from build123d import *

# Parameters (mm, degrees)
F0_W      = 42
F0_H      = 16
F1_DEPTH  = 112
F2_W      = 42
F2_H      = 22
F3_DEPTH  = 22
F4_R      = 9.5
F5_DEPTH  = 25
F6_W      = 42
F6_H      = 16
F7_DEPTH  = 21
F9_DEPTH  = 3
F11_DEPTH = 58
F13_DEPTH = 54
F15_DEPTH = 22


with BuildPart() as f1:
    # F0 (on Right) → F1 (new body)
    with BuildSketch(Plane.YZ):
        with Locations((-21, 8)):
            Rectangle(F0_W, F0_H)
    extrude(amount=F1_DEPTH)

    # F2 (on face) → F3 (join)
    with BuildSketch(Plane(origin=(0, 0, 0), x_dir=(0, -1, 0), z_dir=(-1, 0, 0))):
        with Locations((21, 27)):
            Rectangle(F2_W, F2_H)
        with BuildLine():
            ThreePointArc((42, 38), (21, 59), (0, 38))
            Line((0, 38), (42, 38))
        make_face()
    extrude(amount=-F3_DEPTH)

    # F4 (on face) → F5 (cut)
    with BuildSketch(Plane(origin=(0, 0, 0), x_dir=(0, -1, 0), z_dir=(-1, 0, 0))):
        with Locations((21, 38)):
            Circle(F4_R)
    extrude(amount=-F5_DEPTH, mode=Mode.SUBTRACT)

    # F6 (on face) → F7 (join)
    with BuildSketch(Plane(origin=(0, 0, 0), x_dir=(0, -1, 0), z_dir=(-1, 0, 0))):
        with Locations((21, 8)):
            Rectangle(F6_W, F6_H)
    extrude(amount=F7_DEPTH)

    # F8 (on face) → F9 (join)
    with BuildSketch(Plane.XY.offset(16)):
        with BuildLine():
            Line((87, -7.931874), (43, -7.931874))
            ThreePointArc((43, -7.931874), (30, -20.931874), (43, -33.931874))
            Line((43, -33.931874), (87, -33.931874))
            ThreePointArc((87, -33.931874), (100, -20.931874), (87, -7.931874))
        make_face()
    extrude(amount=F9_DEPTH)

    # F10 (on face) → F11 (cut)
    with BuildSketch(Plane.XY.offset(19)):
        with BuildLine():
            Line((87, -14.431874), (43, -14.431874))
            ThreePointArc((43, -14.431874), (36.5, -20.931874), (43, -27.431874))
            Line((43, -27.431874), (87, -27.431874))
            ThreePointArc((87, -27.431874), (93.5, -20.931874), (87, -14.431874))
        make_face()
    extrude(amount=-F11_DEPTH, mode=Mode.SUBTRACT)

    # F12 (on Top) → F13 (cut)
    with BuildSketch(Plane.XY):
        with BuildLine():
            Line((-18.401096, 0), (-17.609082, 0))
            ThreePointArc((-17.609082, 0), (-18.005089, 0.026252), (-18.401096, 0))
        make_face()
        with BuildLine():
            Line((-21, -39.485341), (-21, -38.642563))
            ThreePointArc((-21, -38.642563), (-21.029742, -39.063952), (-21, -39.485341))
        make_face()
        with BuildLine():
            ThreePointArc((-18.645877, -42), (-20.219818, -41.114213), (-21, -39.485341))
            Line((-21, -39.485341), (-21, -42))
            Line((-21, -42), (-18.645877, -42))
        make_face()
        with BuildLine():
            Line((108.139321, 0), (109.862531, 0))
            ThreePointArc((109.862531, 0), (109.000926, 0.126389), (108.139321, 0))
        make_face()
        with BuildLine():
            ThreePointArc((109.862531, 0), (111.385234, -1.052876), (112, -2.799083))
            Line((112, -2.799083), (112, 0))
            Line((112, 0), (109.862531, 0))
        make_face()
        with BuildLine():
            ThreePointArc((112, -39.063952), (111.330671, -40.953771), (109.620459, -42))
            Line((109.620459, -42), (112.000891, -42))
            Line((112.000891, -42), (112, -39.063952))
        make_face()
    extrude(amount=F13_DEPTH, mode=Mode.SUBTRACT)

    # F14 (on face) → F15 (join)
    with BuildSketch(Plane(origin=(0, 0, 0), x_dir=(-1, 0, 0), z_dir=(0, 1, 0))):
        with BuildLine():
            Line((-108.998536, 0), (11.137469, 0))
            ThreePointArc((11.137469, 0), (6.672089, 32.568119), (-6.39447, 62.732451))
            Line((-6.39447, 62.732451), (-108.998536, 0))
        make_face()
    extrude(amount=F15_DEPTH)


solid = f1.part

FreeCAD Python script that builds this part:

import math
import FreeCAD as App
import Part
import Sketcher

doc = App.newDocument("Part")
body = doc.addObject("PartDesign::Body", "Body")

# Sketch on YZ plane
sketch1 = body.newObject("Sketcher::SketchObject", "Sketch")
sketch1.AttachmentSupport = (doc.getObject("YZ_Plane"), [""])
sketch1.MapMode = "FlatFace"
sketch1.addGeometry([
    Part.LineSegment(App.Vector(-42, 16, 0), App.Vector(-42, 0, 0)),
    Part.LineSegment(App.Vector(-42, 0, 0), App.Vector(0, 0, 0)),
    Part.LineSegment(App.Vector(0, 0, 0), App.Vector(0, 16, 0)),
    Part.LineSegment(App.Vector(0, 16, 0), App.Vector(-42, 16, 0)),
], False)
sketch1.addConstraint([
    Sketcher.Constraint("Coincident", 0, 2, 1, 1),
    Sketcher.Constraint("Coincident", 1, 2, 2, 1),
    Sketcher.Constraint("Coincident", 2, 2, 3, 1),
    Sketcher.Constraint("Coincident", 3, 2, 0, 1),
    Sketcher.Constraint("Vertical", 0),
    Sketcher.Constraint("Horizontal", 1),
    Sketcher.Constraint("Vertical", 2),
    Sketcher.Constraint("Horizontal", 3),
    Sketcher.Constraint("Coincident", 1, 2, -1, 1),
    Sketcher.Constraint("DistanceX", 1, 1, 1, 2, 42.0),
    Sketcher.Constraint("DistanceY", 0, 2, 0, 1, 16.0),
])
pad1 = body.newObject("PartDesign::Pad", "Pad")
pad1.Profile = sketch1
pad1.Length = 112

# Sketch on YZ plane
sketch2 = body.newObject("Sketcher::SketchObject", "Sketch001")
sketch2.AttachmentSupport = (doc.getObject("YZ_Plane"), [""])
sketch2.MapMode = "FlatFace"
sketch2.addGeometry([
    Part.LineSegment(App.Vector(0, 38, 0), App.Vector(0, 16, 0)),
    Part.LineSegment(App.Vector(0, 16, 0), App.Vector(-42, 16, 0)),
    Part.LineSegment(App.Vector(-42, 16, 0), App.Vector(-42, 38, 0)),
    Part.ArcOfCircle(Part.Circle(App.Vector(-21, 38, 0), App.Vector(0, 0, 1), 21), math.radians(0), math.radians(180)),
], False)
sketch2.addConstraint([
    Sketcher.Constraint("Coincident", 0, 2, 1, 1),
    Sketcher.Constraint("Coincident", 1, 2, 2, 1),
    Sketcher.Constraint("Tangent", 2, 2, 3, 2),
    Sketcher.Constraint("Tangent", 3, 1, 0, 1),
    Sketcher.Constraint("Vertical", 0),
    Sketcher.Constraint("Horizontal", 1),
    Sketcher.Constraint("Vertical", 2),
    Sketcher.Constraint("PointOnObject", 0, 2, -2),
    Sketcher.Constraint("Radius", 3, 21.0),
    Sketcher.Constraint("DistanceY", 0, 2, 0, 1, 22.0),
    Sketcher.Constraint("DistanceY", -1, 1, 3, 3, 38.0),
])
pad2 = body.newObject("PartDesign::Pad", "Pad001")
pad2.Profile = sketch2
pad2.Length = 22

# Sketch on YZ plane
sketch3 = body.newObject("Sketcher::SketchObject", "Sketch002")
sketch3.AttachmentSupport = (doc.getObject("YZ_Plane"), [""])
sketch3.MapMode = "FlatFace"
sketch3.addGeometry(Part.Circle(App.Vector(-21, 38, 0), App.Vector(0, 0, 1), 10), False)
sketch3.addConstraint([
    Sketcher.Constraint("Diameter", 0, 19.0),
    Sketcher.Constraint("DistanceX", 0, 3, -1, 1, 21.0),
    Sketcher.Constraint("DistanceY", -1, 1, 0, 3, 38.0),
])
pocket1 = body.newObject("PartDesign::Pocket", "Pocket")
pocket1.Profile = sketch3
pocket1.Length = 25
pocket1.Reversed = True

# Sketch on YZ plane
sketch4 = body.newObject("Sketcher::SketchObject", "Sketch003")
sketch4.AttachmentSupport = (doc.getObject("YZ_Plane"), [""])
sketch4.MapMode = "FlatFace"
sketch4.addGeometry([
    Part.LineSegment(App.Vector(0, 16, 0), App.Vector(0, 0, 0)),
    Part.LineSegment(App.Vector(0, 0, 0), App.Vector(-42, 0, 0)),
    Part.LineSegment(App.Vector(-42, 0, 0), App.Vector(-42, 16, 0)),
    Part.LineSegment(App.Vector(-42, 16, 0), App.Vector(0, 16, 0)),
], False)
sketch4.addConstraint([
    Sketcher.Constraint("Coincident", 0, 2, 1, 1),
    Sketcher.Constraint("Coincident", 1, 2, 2, 1),
    Sketcher.Constraint("Coincident", 2, 2, 3, 1),
    Sketcher.Constraint("Coincident", 3, 2, 0, 1),
    Sketcher.Constraint("Vertical", 0),
    Sketcher.Constraint("Horizontal", 1),
    Sketcher.Constraint("Vertical", 2),
    Sketcher.Constraint("Horizontal", 3),
    Sketcher.Constraint("Coincident", 0, 2, -1, 1),
    Sketcher.Constraint("DistanceX", 1, 2, 1, 1, 42.0),
    Sketcher.Constraint("DistanceY", 0, 2, 0, 1, 16.0),
])
pad3 = body.newObject("PartDesign::Pad", "Pad002")
pad3.Profile = sketch4
pad3.Length = 21
pad3.Reversed = True

# Sketch on XY plane
sketch5 = body.newObject("Sketcher::SketchObject", "Sketch004")
sketch5.AttachmentSupport = (doc.getObject("XY_Plane"), [""])
sketch5.MapMode = "FlatFace"
sketch5.AttachmentOffset = App.Placement(App.Vector(0, 0, 16), App.Rotation())
sketch5.addGeometry([
    Part.LineSegment(App.Vector(87, -8, 0), App.Vector(43, -8, 0)),
    Part.ArcOfCircle(Part.Circle(App.Vector(43, -21, 0), App.Vector(0, 0, 1), 13), math.radians(90), math.radians(270)),
    Part.LineSegment(App.Vector(43, -34, 0), App.Vector(87, -34, 0)),
    Part.ArcOfCircle(Part.Circle(App.Vector(87, -21, 0), App.Vector(0, 0, 1), 13), math.radians(-90), math.radians(90)),
], False)
sketch5.addConstraint([
    Sketcher.Constraint("Tangent", 0, 2, 1, 1),
    Sketcher.Constraint("Tangent", 1, 2, 2, 1),
    Sketcher.Constraint("Tangent", 2, 2, 3, 1),
    Sketcher.Constraint("Tangent", 3, 2, 0, 1),
    Sketcher.Constraint("Horizontal", 0),
    Sketcher.Constraint("Horizontal", 2),
    Sketcher.Constraint("Radius", 1, 13.0),
    Sketcher.Constraint("DistanceX", 0, 2, 0, 1, 44.0),
    Sketcher.Constraint("DistanceX", -1, 1, 1, 3, 43.0),
    Sketcher.Constraint("DistanceY", 1, 3, -1, 1, 20.931874),
])
pad4 = body.newObject("PartDesign::Pad", "Pad003")
pad4.Profile = sketch5
pad4.Length = 3

# Sketch on XY plane
sketch6 = body.newObject("Sketcher::SketchObject", "Sketch005")
sketch6.AttachmentSupport = (doc.getObject("XY_Plane"), [""])
sketch6.MapMode = "FlatFace"
sketch6.AttachmentOffset = App.Placement(App.Vector(0, 0, 19), App.Rotation())
sketch6.addGeometry([
    Part.LineSegment(App.Vector(87, -14, 0), App.Vector(43, -14, 0)),
    Part.ArcOfCircle(Part.Circle(App.Vector(43, -21, 0), App.Vector(0, 0, 1), 6), math.radians(90), math.radians(270)),
    Part.LineSegment(App.Vector(43, -27, 0), App.Vector(87, -27, 0)),
    Part.ArcOfCircle(Part.Circle(App.Vector(87, -21, 0), App.Vector(0, 0, 1), 6), math.radians(-90), math.radians(90)),
], False)
sketch6.addConstraint([
    Sketcher.Constraint("Tangent", 0, 2, 1, 1),
    Sketcher.Constraint("Tangent", 1, 2, 2, 1),
    Sketcher.Constraint("Tangent", 2, 2, 3, 1),
    Sketcher.Constraint("Tangent", 3, 2, 0, 1),
    Sketcher.Constraint("Horizontal", 0),
    Sketcher.Constraint("Horizontal", 2),
    Sketcher.Constraint("Radius", 1, 6.5),
    Sketcher.Constraint("DistanceX", 0, 2, 0, 1, 44.0),
    Sketcher.Constraint("DistanceX", -1, 1, 1, 3, 43.0),
    Sketcher.Constraint("DistanceY", 1, 3, -1, 1, 20.931874),
])
pocket2 = body.newObject("PartDesign::Pocket", "Pocket001")
pocket2.Profile = sketch6
pocket2.Length = 58

# Sketch on XY plane
sketch7 = body.newObject("Sketcher::SketchObject", "Sketch006")
sketch7.AttachmentSupport = (doc.getObject("XY_Plane"), [""])
sketch7.MapMode = "FlatFace"
sketch7.addGeometry([
    Part.LineSegment(App.Vector(-18.401096, 0, 0), App.Vector(-17.609082, 0, 0)),  # 0
    Part.ArcOfCircle(Part.Circle(App.Vector(-18.005089, -2.973723, 0), App.Vector(0, 0, 1), 2.999975), math.radians(82.414623), math.radians(97.585377)),  # 1
    Part.LineSegment(App.Vector(-21, -39.485341, 0), App.Vector(-21, -38.642563, 0)),  # 2
    Part.ArcOfCircle(Part.Circle(App.Vector(-18.029721, -39.063952, 0), App.Vector(0, 0, 1), 3.000021), math.radians(171.925419), math.radians(188.074581)),  # 3
    Part.ArcOfCircle(Part.Circle(App.Vector(-18.029744, -39.063953, 0), App.Vector(0, 0, 1), 2.999998), math.radians(-171.925383), math.radians(-101.851621)),  # 4
    Part.LineSegment(App.Vector(-21, -39.485341, 0), App.Vector(-21, -42, 0)),  # 5
    Part.LineSegment(App.Vector(-21, -42, 0), App.Vector(-18.645877, -42, 0)),  # 6
    Part.LineSegment(App.Vector(108.139321, 0, 0), App.Vector(109.862531, 0, 0)),  # 7
    Part.ArcOfCircle(Part.Circle(App.Vector(109.000926, -2.873624, 0), App.Vector(0, 0, 1), 3.000013), math.radians(73.309578), math.radians(106.690422)),  # 8
    Part.ArcOfCircle(Part.Circle(App.Vector(109.000925, -2.873611, 0), App.Vector(0, 0, 1), 3.000001), math.radians(1.423525), math.radians(73.309489)),  # 9
    Part.LineSegment(App.Vector(112, -2.799083, 0), App.Vector(112, 0, 0)),  # 10
    Part.LineSegment(App.Vector(112, 0, 0), App.Vector(109.862531, 0, 0)),  # 11
    Part.ArcOfCircle(Part.Circle(App.Vector(109.000001, -39.064863, 0), App.Vector(0, 0, 1), 2.999999), math.radians(-78.063971), math.radians(0.017404)),  # 12
    Part.LineSegment(App.Vector(109.620459, -42, 0), App.Vector(112.000891, -42, 0)),  # 13
    Part.LineSegment(App.Vector(112.000891, -42, 0), App.Vector(112, -39.063952, 0)),  # 14
], False)
sketch7.addConstraint([
    Sketcher.Constraint("Coincident", 0, 1, 1, 2),
    Sketcher.Constraint("Coincident", 1, 1, 0, 2),
    Sketcher.Constraint("Coincident", 2, 1, 3, 2),
    Sketcher.Constraint("Coincident", 3, 1, 2, 2),
    Sketcher.Constraint("Coincident", 4, 1, 5, 1),
    Sketcher.Constraint("Coincident", 5, 2, 6, 1),
    Sketcher.Constraint("Coincident", 6, 2, 4, 2),
    Sketcher.Constraint("Coincident", 7, 1, 8, 2),
    Sketcher.Constraint("Coincident", 8, 1, 7, 2),
    Sketcher.Constraint("Coincident", 9, 1, 10, 1),
    Sketcher.Constraint("Coincident", 10, 2, 11, 1),
    Sketcher.Constraint("Coincident", 11, 2, 9, 2),
    Sketcher.Constraint("Coincident", 12, 1, 13, 1),
    Sketcher.Constraint("Coincident", 13, 2, 14, 1),
    Sketcher.Constraint("Coincident", 14, 2, 12, 2),
    Sketcher.Constraint("Horizontal", 0),
    Sketcher.Constraint("Vertical", 2),
    Sketcher.Constraint("Vertical", 5),
    Sketcher.Constraint("Horizontal", 6),
    Sketcher.Constraint("Horizontal", 7),
    Sketcher.Constraint("Vertical", 10),
    Sketcher.Constraint("Horizontal", 11),
    Sketcher.Constraint("Horizontal", 13),
    Sketcher.Constraint("Coincident", 4, 1, 2, 1),
    Sketcher.Constraint("Coincident", 11, 2, 8, 1),
    Sketcher.Constraint("PointOnObject", 0, 1, -1),
    Sketcher.Constraint("PointOnObject", 7, 1, -1),
    Sketcher.Constraint("Radius", 4, 2.999998),
    Sketcher.Constraint("Radius", 9, 3.000001),
    Sketcher.Constraint("Radius", 12, 2.999999),
    Sketcher.Constraint("DistanceX", -1, 1, 12, 3, 109.000001),
    Sketcher.Constraint("DistanceX", 2, 1, -1, 1, 21.0),
    Sketcher.Constraint("DistanceY", 5, 2, -1, 1, 42.0),
    Sketcher.Constraint("DistanceX", -1, 1, 9, 1, 112.0),
    Sketcher.Constraint("DistanceY", 12, 1, -1, 1, 42.0),
    Sketcher.Constraint("Radius", 3, 3.000021),
    Sketcher.Constraint("Radius", 1, 2.999975),
    Sketcher.Constraint("Radius", 8, 3.000013),
    Sketcher.Constraint("DistanceX", 7, 1, 7, 2, 1.72321),
    Sketcher.Constraint("DistanceX", 11, 2, 11, 1, 2.137469),
    Sketcher.Constraint("DistanceX", 13, 1, 13, 2, 2.380432),
    Sketcher.Constraint("DistanceY", 5, 2, 5, 1, 2.514659),
    Sketcher.Constraint("DistanceY", 1, 3, 8, 3, 0.100099),
    Sketcher.Constraint("Distance", 14, 2.936048),
    Sketcher.Constraint("DistanceX", 6, 1, 6, 2, 2.354123),
    Sketcher.Constraint("DistanceY", 2, 1, 2, 2, 0.842778),
    Sketcher.Constraint("DistanceY", 10, 1, 10, 2, 2.799083),
    Sketcher.Constraint("DistanceX", 1, 3, -1, 1, 18.005089),
    Sketcher.Constraint("DistanceX", -1, 1, 12, 1, 109.620459),
])
pocket3 = body.newObject("PartDesign::Pocket", "Pocket002")
pocket3.Profile = sketch7
pocket3.Length = 54
pocket3.Reversed = True

# Sketch on XZ plane
sketch8 = body.newObject("Sketcher::SketchObject", "Sketch007")
sketch8.AttachmentSupport = (doc.getObject("XZ_Plane"), [""])
sketch8.MapMode = "FlatFace"
sketch8.addGeometry([
    Part.LineSegment(App.Vector(109, 0, 0), App.Vector(-11, 0, 0)),
    Part.ArcOfCircle(Part.Circle(App.Vector(110, 0, 0), App.Vector(0, 0, 1), 121), math.radians(149), math.radians(180)),
    Part.LineSegment(App.Vector(6, 63, 0), App.Vector(109, 0, 0)),
], False)
sketch8.addConstraint([
    Sketcher.Constraint("Coincident", 0, 2, 1, 2),
    Sketcher.Constraint("Coincident", 1, 1, 2, 1),
    Sketcher.Constraint("Coincident", 2, 2, 0, 1),
    Sketcher.Constraint("Horizontal", 0),
    Sketcher.Constraint("PointOnObject", 1, 3, -1),
    Sketcher.Constraint("PointOnObject", 0, 2, -1),
    Sketcher.Constraint("Radius", 1, 120.999999),
    Sketcher.Constraint("DistanceX", 0, 2, 0, 1, 120.136005),
    Sketcher.Constraint("DistanceX", -1, 1, 1, 3, 109.86253),
    Sketcher.Constraint("DistanceX", -1, 1, 1, 1, 6.39447),
])
pad5 = body.newObject("PartDesign::Pad", "Pad004")
pad5.Profile = sketch8
pad5.Length = 22
pad5.Reversed = True

doc.recompute()
